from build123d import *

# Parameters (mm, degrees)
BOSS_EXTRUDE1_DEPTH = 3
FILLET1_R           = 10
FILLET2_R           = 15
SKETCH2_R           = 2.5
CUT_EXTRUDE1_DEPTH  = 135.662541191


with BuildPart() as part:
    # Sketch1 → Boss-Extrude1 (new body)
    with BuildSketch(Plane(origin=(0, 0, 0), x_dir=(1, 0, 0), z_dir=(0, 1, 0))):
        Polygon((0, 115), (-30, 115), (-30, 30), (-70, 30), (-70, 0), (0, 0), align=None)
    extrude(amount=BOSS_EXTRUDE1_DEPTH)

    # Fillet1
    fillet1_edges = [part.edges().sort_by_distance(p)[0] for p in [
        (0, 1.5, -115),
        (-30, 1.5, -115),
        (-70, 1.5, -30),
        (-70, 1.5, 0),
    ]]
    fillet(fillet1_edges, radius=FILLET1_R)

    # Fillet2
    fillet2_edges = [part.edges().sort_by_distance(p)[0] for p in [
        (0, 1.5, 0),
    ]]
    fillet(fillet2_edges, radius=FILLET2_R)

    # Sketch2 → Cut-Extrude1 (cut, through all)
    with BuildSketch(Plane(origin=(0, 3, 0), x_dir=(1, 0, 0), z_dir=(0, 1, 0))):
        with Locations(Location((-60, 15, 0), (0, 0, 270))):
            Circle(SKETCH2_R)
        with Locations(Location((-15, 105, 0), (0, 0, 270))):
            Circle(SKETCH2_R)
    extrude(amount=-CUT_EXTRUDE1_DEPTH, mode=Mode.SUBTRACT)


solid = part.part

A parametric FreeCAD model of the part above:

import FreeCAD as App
import Part
import Sketcher

V = App.Vector
Q = App.Units.Quantity


def edges_at(feature, points):
    """Names of the edges that pass closest to the given points."""
    edges = feature.Shape.Edges
    near = lambda p: min(range(len(edges)), key=lambda i: edges[i].distToShape(Part.Vertex(*p))[0])
    return sorted({f"Edge{near(p) + 1}" for p in points})

doc = App.newDocument("Part")
body = doc.addObject("PartDesign::Body", "Body")

sketch1 = body.newObject("Sketcher::SketchObject", "Sketch")
sketch1.AttachmentSupport = (doc.getObject("XZ_Plane"), [""])
sketch1.MapMode = "FlatFace"
sketch1.addGeometry(Part.LineSegment(V(0, -115, 0), V(-30, -115, 0)), False)
sketch1.addGeometry(Part.LineSegment(V(-30, -115, 0), V(-30, -30, 0)), False)
sketch1.addGeometry(Part.LineSegment(V(-30, -30, 0), V(-70, -30, 0)), False)
sketch1.addGeometry(Part.LineSegment(V(-70, -30, 0), V(-70, 0, 0)), False)
sketch1.addGeometry(Part.LineSegment(V(-70, 0, 0), V(0, 0, 0)), False)
sketch1.addGeometry(Part.LineSegment(V(0, 0, 0), V(0, -115, 0)), False)
sketch1.addConstraint(Sketcher.Constraint("Coincident", 0, 2, 1, 1))
sketch1.addConstraint(Sketcher.Constraint("Coincident", 1, 2, 2, 1))
sketch1.addConstraint(Sketcher.Constraint("Coincident", 2, 2, 3, 1))
sketch1.addConstraint(Sketcher.Constraint("Coincident", 3, 2, 4, 1))
sketch1.addConstraint(Sketcher.Constraint("Coincident", 4, 2, 5, 1))
sketch1.addConstraint(Sketcher.Constraint("Coincident", 5, 2, 0, 1))
sketch1.addConstraint(Sketcher.Constraint("Horizontal", 0))
sketch1.addConstraint(Sketcher.Constraint("Vertical", 1))
sketch1.addConstraint(Sketcher.Constraint("Horizontal", 2))
sketch1.addConstraint(Sketcher.Constraint("Vertical", 3))
sketch1.addConstraint(Sketcher.Constraint("Horizontal", 4))
sketch1.addConstraint(Sketcher.Constraint("Vertical", 5))
sketch1.addConstraint(Sketcher.Constraint("Coincident", 4, 2, -1, 1))
sketch1.addConstraint(Sketcher.Constraint("Equal", 0, 3))
sketch1.addConstraint(Sketcher.Constraint("DistanceX", 0, 2, 0, 1, Q("30 mm")))
sketch1.addConstraint(Sketcher.Constraint("DistanceX", 2, 2, 2, 1, Q("40 mm")))
sketch1.addConstraint(Sketcher.Constraint("DistanceY", 1, 1, 1, 2, Q("85 mm")))
pad1 = body.newObject("PartDesign::Pad", "Pad")
pad1.Profile = sketch1
pad1.Length = 3
pad1.Reversed = True
doc.recompute()

fillet = body.newObject("PartDesign::Fillet", "Fillet")
fillet.Base = (pad1, edges_at(pad1, [
    (0, 1.5, -115),
    (-30, 1.5, -115),
    (-70, 1.5, -30),
    (-70, 1.5, 0),
]))
fillet.Radius = 10
doc.recompute()

fillet2 = body.newObject("PartDesign::Fillet", "Fillet001")
fillet2.Base = (fillet, edges_at(fillet, [(0, 1.5, 0)]))
fillet2.Radius = 15

sketch2 = body.newObject("Sketcher::SketchObject", "Sketch001")
sketch2.AttachmentSupport = (doc.getObject("XZ_Plane"), [""])
sketch2.MapMode = "FlatFace"
sketch2.AttachmentOffset = App.Placement(V(0, 0, -3), App.Rotation())
sketch2.addGeometry(Part.Circle(V(-60, -15, 0), V(0, 0, 1), 2.5), False)
sketch2.addGeometry(Part.Circle(V(-15, -105, 0), V(0, 0, 1), 2.5), False)
sketch2.addConstraint(Sketcher.Constraint("Equal", 0, 1))
sketch2.addConstraint(Sketcher.Constraint("Diameter", 0, Q("5 mm")))
sketch2.addConstraint(Sketcher.Constraint("DistanceX", 0, 3, -1, 1, Q("60 mm")))
sketch2.addConstraint(Sketcher.Constraint("DistanceY", 0, 3, -1, 1, Q("15 mm")))
sketch2.addConstraint(Sketcher.Constraint("DistanceX", 1, 3, -1, 1, Q("15 mm")))
sketch2.addConstraint(Sketcher.Constraint("DistanceY", 1, 3, -1, 1, Q("105 mm")))
pocket1 = body.newObject("PartDesign::Pocket", "Pocket")
pocket1.Profile = sketch2
pocket1.Type = "ThroughAll"
pocket1.Reversed = True

doc.recompute()
